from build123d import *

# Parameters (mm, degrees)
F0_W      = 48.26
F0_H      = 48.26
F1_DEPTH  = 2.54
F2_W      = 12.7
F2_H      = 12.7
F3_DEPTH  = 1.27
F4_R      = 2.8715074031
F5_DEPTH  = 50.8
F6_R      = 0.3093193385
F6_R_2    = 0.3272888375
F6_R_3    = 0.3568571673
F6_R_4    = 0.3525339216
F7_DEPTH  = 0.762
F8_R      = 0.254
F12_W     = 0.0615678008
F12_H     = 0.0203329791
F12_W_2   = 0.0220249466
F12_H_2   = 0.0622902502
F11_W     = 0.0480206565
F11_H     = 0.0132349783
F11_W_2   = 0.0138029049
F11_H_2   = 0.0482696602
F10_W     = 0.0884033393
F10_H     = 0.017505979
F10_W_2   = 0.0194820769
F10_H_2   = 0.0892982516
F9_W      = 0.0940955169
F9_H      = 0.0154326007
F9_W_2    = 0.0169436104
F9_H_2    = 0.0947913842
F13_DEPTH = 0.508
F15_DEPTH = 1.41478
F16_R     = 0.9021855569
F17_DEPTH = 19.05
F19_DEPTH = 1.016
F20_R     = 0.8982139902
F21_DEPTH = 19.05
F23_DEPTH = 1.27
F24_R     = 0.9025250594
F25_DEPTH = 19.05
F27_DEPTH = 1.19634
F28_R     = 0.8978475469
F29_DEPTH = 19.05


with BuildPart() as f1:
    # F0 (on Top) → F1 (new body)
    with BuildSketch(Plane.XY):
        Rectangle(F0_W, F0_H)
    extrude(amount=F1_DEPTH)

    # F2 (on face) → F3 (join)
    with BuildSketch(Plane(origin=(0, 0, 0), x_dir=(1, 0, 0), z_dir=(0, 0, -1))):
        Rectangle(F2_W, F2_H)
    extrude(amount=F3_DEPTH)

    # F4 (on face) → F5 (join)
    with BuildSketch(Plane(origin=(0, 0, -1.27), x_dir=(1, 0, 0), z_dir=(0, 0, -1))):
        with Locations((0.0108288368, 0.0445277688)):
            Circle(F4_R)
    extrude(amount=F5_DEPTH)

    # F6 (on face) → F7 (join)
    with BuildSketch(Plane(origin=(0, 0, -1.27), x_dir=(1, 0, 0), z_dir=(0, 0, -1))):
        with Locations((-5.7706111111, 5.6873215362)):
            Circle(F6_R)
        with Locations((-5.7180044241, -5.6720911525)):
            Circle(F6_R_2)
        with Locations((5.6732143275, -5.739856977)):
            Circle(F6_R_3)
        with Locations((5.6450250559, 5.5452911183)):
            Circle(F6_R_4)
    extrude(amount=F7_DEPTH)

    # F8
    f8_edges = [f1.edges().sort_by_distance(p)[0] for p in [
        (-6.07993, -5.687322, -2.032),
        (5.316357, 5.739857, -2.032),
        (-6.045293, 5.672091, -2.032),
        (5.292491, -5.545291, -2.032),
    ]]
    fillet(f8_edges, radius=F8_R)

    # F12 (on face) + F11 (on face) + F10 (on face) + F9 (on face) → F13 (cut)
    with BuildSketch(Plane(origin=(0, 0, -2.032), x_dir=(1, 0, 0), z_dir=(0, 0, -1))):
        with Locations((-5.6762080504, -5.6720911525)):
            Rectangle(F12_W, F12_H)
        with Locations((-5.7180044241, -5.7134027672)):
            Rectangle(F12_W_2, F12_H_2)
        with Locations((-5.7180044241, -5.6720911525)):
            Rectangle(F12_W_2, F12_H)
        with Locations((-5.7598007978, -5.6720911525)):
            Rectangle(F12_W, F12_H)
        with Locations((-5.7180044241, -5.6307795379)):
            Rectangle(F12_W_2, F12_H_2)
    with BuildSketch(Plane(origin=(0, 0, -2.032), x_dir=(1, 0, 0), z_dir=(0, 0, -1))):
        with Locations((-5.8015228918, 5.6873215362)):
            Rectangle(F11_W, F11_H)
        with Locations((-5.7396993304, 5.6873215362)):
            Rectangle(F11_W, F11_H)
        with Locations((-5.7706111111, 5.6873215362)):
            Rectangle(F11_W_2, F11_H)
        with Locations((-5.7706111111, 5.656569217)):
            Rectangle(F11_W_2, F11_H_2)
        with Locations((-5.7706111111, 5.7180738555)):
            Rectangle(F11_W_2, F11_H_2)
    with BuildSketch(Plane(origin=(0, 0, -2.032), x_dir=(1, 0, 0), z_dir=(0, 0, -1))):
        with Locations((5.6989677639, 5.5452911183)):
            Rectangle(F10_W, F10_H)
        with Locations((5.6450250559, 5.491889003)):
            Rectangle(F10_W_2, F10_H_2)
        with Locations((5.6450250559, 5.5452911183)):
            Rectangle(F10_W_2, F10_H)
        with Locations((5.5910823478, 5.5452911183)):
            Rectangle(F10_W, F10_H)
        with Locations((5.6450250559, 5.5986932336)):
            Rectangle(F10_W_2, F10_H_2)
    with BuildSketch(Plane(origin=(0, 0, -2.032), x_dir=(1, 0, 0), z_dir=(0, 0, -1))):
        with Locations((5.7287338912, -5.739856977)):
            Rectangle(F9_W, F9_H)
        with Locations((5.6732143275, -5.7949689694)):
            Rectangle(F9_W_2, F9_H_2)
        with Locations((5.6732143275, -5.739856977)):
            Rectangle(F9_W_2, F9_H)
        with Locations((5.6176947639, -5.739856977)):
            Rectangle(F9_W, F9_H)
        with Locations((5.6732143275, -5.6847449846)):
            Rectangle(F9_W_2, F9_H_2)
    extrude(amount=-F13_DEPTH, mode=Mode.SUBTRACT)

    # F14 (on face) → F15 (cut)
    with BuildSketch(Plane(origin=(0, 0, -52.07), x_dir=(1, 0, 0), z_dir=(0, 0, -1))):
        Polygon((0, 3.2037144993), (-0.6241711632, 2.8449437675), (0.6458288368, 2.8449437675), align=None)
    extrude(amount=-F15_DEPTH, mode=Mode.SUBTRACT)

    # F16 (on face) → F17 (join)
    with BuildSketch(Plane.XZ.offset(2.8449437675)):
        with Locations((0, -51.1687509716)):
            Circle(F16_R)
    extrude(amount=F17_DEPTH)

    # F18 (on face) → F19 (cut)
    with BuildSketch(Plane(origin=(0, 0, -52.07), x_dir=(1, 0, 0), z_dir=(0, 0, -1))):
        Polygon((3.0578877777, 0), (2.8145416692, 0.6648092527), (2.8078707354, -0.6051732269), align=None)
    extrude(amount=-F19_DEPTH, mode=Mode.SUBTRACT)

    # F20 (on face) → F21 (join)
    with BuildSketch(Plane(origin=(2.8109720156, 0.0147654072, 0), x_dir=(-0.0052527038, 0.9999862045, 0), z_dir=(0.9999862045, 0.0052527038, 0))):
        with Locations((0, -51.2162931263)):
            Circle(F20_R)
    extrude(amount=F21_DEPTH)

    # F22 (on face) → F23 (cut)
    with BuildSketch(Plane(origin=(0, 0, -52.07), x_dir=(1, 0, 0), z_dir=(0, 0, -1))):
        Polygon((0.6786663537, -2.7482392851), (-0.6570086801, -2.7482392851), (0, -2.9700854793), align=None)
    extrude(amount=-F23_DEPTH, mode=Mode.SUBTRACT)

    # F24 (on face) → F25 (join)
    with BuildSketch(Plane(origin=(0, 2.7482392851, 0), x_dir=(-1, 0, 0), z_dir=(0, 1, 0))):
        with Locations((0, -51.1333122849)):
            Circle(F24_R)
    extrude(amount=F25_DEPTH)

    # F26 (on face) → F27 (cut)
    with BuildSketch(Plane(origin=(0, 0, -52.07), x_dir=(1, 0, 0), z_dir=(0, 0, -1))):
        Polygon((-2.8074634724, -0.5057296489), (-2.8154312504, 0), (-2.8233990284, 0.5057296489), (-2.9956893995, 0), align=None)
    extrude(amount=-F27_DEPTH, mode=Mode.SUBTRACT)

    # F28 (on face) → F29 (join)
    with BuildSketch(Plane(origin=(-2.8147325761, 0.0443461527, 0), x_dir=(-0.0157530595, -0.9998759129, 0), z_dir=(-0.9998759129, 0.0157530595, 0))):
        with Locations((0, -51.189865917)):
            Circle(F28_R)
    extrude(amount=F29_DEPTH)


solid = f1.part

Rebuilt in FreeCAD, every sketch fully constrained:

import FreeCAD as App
import Part
import Sketcher
Q = App.Units.Quantity


def edges_at(feature, points):
    """Names of the edges that pass closest to the given points."""
    edges = feature.Shape.Edges
    near = lambda p: min(range(len(edges)), key=lambda i: edges[i].distToShape(Part.Vertex(*p))[0])
    return sorted({f"Edge{near(p) + 1}" for p in points})


def add_polygon(sketch, points):
    """Adds a closed chain of lines whose ends are joined by coincident constraints."""
    first, n = sketch.GeometryCount, len(points)
    for a, b in zip(points, points[1:] + points[:1]):
        sketch.addGeometry(Part.LineSegment(App.Vector(*a, 0), App.Vector(*b, 0)), False)
    for i in range(n):
        sketch.addConstraint(Sketcher.Constraint("Coincident", first + i, 2, first + (i + 1) % n, 1))

doc = App.newDocument("Part")
body = doc.addObject("PartDesign::Body", "Body")

# Sketch on XY plane
sketch1 = body.newObject("Sketcher::SketchObject", "Sketch")
sketch1.AttachmentSupport = (doc.getObject("XY_Plane"), [""])
sketch1.MapMode = "FlatFace"
add_polygon(sketch1, [(-24, 24), (-24, -24), (24, -24), (24, 24)])  # lines 0-3
sketch1.addConstraint([
    Sketcher.Constraint("Vertical", 0),
    Sketcher.Constraint("Horizontal", 1),
    Sketcher.Constraint("Vertical", 2),
    Sketcher.Constraint("Horizontal", 3),
    Sketcher.Constraint("Symmetric", 0, 2, 2, 2, -1, 1),
    Sketcher.Constraint("Equal", 3, 0),
    Sketcher.Constraint("DistanceX", 1, 1, 1, 2, Q("1.9 in")),
])
pad1 = body.newObject("PartDesign::Pad", "Pad")
pad1.Profile = sketch1
pad1.Length = Q("0.1 in")

# Sketch on XY plane
sketch2 = body.newObject("Sketcher::SketchObject", "Sketch001")
sketch2.AttachmentSupport = (doc.getObject("XY_Plane"), [""])
sketch2.MapMode = "FlatFace"
add_polygon(sketch2, [(-6, -6), (-6, 6), (6, 6), (6, -6)])  # lines 0-3
sketch2.addConstraint([
    Sketcher.Constraint("Vertical", 0),
    Sketcher.Constraint("Horizontal", 1),
    Sketcher.Constraint("Vertical", 2),
    Sketcher.Constraint("Horizontal", 3),
    Sketcher.Constraint("Symmetric", 0, 2, 2, 2, -1, 1),
    Sketcher.Constraint("Equal", 3, 0),
    Sketcher.Constraint("DistanceX", 1, 1, 1, 2, Q("0.5 in")),
])
pad2 = body.newObject("PartDesign::Pad", "Pad001")
pad2.Profile = sketch2
pad2.Length = Q("0.05 in")
pad2.Reversed = True

# Sketch on XY plane
sketch3 = body.newObject("Sketcher::SketchObject", "Sketch002")
sketch3.AttachmentSupport = (doc.getObject("XY_Plane"), [""])
sketch3.MapMode = "FlatFace"
sketch3.AttachmentOffset = App.Placement(App.Vector(0, 0, -0.05 * 25.4), App.Rotation())
sketch3.addGeometry(Part.Circle(App.Vector(0, 0, 0), App.Vector(0, 0, 1), 2.9), False)
sketch3.addConstraint([
    Sketcher.Constraint("Diameter", 0, Q("5.743015 mm")),
    Sketcher.Constraint("DistanceX", -1, 1, 0, 3, Q("0.010829 mm")),
    Sketcher.Constraint("DistanceY", 0, 3, -1, 1, Q("0.044528 mm")),
])
pad3 = body.newObject("PartDesign::Pad", "Pad002")
pad3.Profile = sketch3
pad3.Length = Q("2 in")
pad3.Reversed = True

# Sketch on XY plane
sketch4 = body.newObject("Sketcher::SketchObject", "Sketch003")
sketch4.AttachmentSupport = (doc.getObject("XY_Plane"), [""])
sketch4.MapMode = "FlatFace"
sketch4.AttachmentOffset = App.Placement(App.Vector(0, 0, -0.05 * 25.4), App.Rotation())
sketch4.addGeometry([
    Part.Circle(App.Vector(-5.77, -5.69, 0), App.Vector(0, 0, 1), 0.31),
    Part.Circle(App.Vector(-5.72, 5.67, 0), App.Vector(0, 0, 1), 0.33),
    Part.Circle(App.Vector(5.67, 5.74, 0), App.Vector(0, 0, 1), 0.36),
    Part.Circle(App.Vector(5.65, -5.55, 0), App.Vector(0, 0, 1), 0.35),
], False)
sketch4.addConstraint([
    Sketcher.Constraint("Diameter", 0, Q("0.618639 mm")),
    Sketcher.Constraint("Diameter", 1, Q("0.654578 mm")),
    Sketcher.Constraint("Diameter", 2, Q("0.713714 mm")),
    Sketcher.Constraint("Diameter", 3, Q("0.705068 mm")),
    Sketcher.Constraint("DistanceX", 0, 3, -1, 1, Q("5.770611 mm")),
    Sketcher.Constraint("DistanceY", 0, 3, -1, 1, Q("5.687322 mm")),
    Sketcher.Constraint("DistanceY", -1, 1, 1, 3, Q("5.672091 mm")),
    Sketcher.Constraint("DistanceY", 3, 3, -1, 1, Q("5.545291 mm")),
    Sketcher.Constraint("DistanceX", 1, 3, 2, 3, Q("11.391219 mm")),
    Sketcher.Constraint("DistanceY", 0, 3, 2, 3, Q("11.427179 mm")),
    Sketcher.Constraint("DistanceX", 3, 3, 2, 3, Q("0.028189 mm")),
    Sketcher.Constraint("DistanceX", 1, 3, -1, 1, Q("5.718004 mm")),
])
pad4 = body.newObject("PartDesign::Pad", "Pad003")
pad4.Profile = sketch4
pad4.Length = Q("0.03 in")
pad4.Reversed = True
doc.recompute()

fillet = body.newObject("PartDesign::Fillet", "Fillet")
fillet.Base = (pad4, edges_at(pad4, [
    (-6.08, -5.687, -2.032),
    (5.316, 5.74, -2.032),
    (-6.045, 5.672, -2.032),
    (5.292, -5.545, -2.032),
]))
fillet.Radius = Q("0.01 in")

# Sketch on XY plane
sketch5 = body.newObject("Sketcher::SketchObject", "Sketch004")
sketch5.AttachmentSupport = (doc.getObject("XY_Plane"), [""])
sketch5.MapMode = "FlatFace"
sketch5.AttachmentOffset = App.Placement(App.Vector(0, 0, -0.08 * 25.4), App.Rotation())
add_polygon(sketch5, [(-5.707, 5.682), (-5.645, 5.682), (-5.645, 5.662), (-5.707, 5.662), (-5.707, 5.6), (-5.729, 5.6), (-5.729, 5.662), (-5.791, 5.662), (-5.791, 5.682), (-5.729, 5.682), (-5.729, 5.745), (-5.707, 5.745)])  # lines 0-11
add_polygon(sketch5, [(-5.826, -5.694), (-5.826, -5.681), (-5.778, -5.681), (-5.778, -5.632), (-5.764, -5.632), (-5.764, -5.681), (-5.716, -5.681), (-5.716, -5.694), (-5.764, -5.694), (-5.764, -5.742), (-5.778, -5.742), (-5.778, -5.694)])  # lines 12-23
add_polygon(sketch5, [(5.655, -5.537), (5.743, -5.537), (5.743, -5.554), (5.655, -5.554), (5.655, -5.643), (5.635, -5.643), (5.635, -5.554), (5.547, -5.554), (5.547, -5.537), (5.635, -5.537), (5.635, -5.447), (5.655, -5.447)])  # lines 24-35
add_polygon(sketch5, [(5.682, 5.748), (5.776, 5.748), (5.776, 5.732), (5.682, 5.732), (5.682, 5.637), (5.665, 5.637), (5.665, 5.732), (5.571, 5.732), (5.571, 5.748), (5.665, 5.748), (5.665, 5.842), (5.682, 5.842)])  # lines 36-47
sketch5.addConstraint([
    Sketcher.Constraint("Horizontal", 0),
    Sketcher.Constraint("Vertical", 1),
    Sketcher.Constraint("Horizontal", 2),
    Sketcher.Constraint("Vertical", 3),
    Sketcher.Constraint("Horizontal", 4),
    Sketcher.Constraint("Vertical", 5),
    Sketcher.Constraint("Horizontal", 6),
    Sketcher.Constraint("Vertical", 7),
    Sketcher.Constraint("Horizontal", 8),
    Sketcher.Constraint("Vertical", 9),
    Sketcher.Constraint("Horizontal", 10),
    Sketcher.Constraint("Vertical", 11),
    Sketcher.Constraint("Vertical", 12),
    Sketcher.Constraint("Horizontal", 13),
    Sketcher.Constraint("Vertical", 14),
    Sketcher.Constraint("Horizontal", 15),
    Sketcher.Constraint("Vertical", 16),
    Sketcher.Constraint("Horizontal", 17),
    Sketcher.Constraint("Vertical", 18),
    Sketcher.Constraint("Horizontal", 19),
    Sketcher.Constraint("Vertical", 20),
    Sketcher.Constraint("Horizontal", 21),
    Sketcher.Constraint("Vertical", 22),
    Sketcher.Constraint("Horizontal", 23),
    Sketcher.Constraint("Horizontal", 24),
    Sketcher.Constraint("Vertical", 25),
    Sketcher.Constraint("Horizontal", 26),
    Sketcher.Constraint("Vertical", 27),
    Sketcher.Constraint("Horizontal", 28),
    Sketcher.Constraint("Vertical", 29),
    Sketcher.Constraint("Horizontal", 30),
    Sketcher.Constraint("Vertical", 31),
    Sketcher.Constraint("Horizontal", 32),
    Sketcher.Constraint("Vertical", 33),
    Sketcher.Constraint("Horizontal", 34),
    Sketcher.Constraint("Vertical", 35),
    Sketcher.Constraint("Horizontal", 36),
    Sketcher.Constraint("Vertical", 37),
    Sketcher.Constraint("Horizontal", 38),
    Sketcher.Constraint("Vertical", 39),
    Sketcher.Constraint("Horizontal", 40),
    Sketcher.Constraint("Vertical", 41),
    Sketcher.Constraint("Horizontal", 42),
    Sketcher.Constraint("Vertical", 43),
    Sketcher.Constraint("Horizontal", 44),
    Sketcher.Constraint("Vertical", 45),
    Sketcher.Constraint("Horizontal", 46),
    Sketcher.Constraint("Vertical", 47),
    Sketcher.Constraint("Horizontal", 2, 2, 5, 2),
    Sketcher.Constraint("Horizontal", 0, 2, 7, 2),
    Sketcher.Constraint("Horizontal", 13, 2, 16, 2),
    Sketcher.Constraint("Horizontal", 19, 2, 22, 2),
    Sketcher.Constraint("Horizontal", 26, 2, 29, 2),
    Sketcher.Constraint("Horizontal", 24, 2, 31, 2),
    Sketcher.Constraint("Horizontal", 38, 2, 41, 2),
    Sketcher.Constraint("Horizontal", 36, 2, 43, 2),
    Sketcher.Constraint("Vertical", 5, 2, 8, 2),
    Sketcher.Constraint("Vertical", 3, 2, 10, 2),
    Sketcher.Constraint("Vertical", 16, 2, 19, 2),
    Sketcher.Constraint("Vertical", 14, 2, 21, 2),
    Sketcher.Constraint("Vertical", 29, 2, 32, 2),
    Sketcher.Constraint("Vertical", 27, 2, 34, 2),
    Sketcher.Constraint("Vertical", 41, 2, 44, 2),
    Sketcher.Constraint("Vertical", 39, 2, 46, 2),
    Sketcher.Constraint("Equal", 2, 6),
    Sketcher.Constraint("Equal", 13, 17),
    Sketcher.Constraint("Equal", 26, 30),
    Sketcher.Constraint("Equal", 38, 42),
    Sketcher.Constraint("Equal", 5, 9),
    Sketcher.Constraint("Equal", 16, 20),
    Sketcher.Constraint("Equal", 29, 33),
    Sketcher.Constraint("Equal", 41, 45),
    Sketcher.Constraint("DistanceY", 27, 2, 27, 1, Q("0.089298 mm")),
    Sketcher.Constraint("DistanceX", 12, 2, 4, 2, Q("0.0037999 in")),
    Sketcher.Constraint("DistanceX", 13, 1, 13, 2, Q("0.048021 mm")),
    Sketcher.Constraint("DistanceY", 3, 2, 3, 1, Q("0.06229 mm")),
    Sketcher.Constraint("DistanceY", 14, 1, 14, 2, Q("0.04827 mm")),
    Sketcher.Constraint("DistanceY", 39, 2, 39, 1, Q("0.094791 mm")),
    Sketcher.Constraint("DistanceY", 18, 2, 24, 2, Q("0.157401 mm")),
    Sketcher.Constraint("DistanceX", 0, 1, 0, 2, Q("0.061568 mm")),
    Sketcher.Constraint("DistanceX", 4, 2, 4, 1, Q("0.022025 mm")),
    Sketcher.Constraint("DistanceX", 15, 1, 15, 2, Q("0.013803 mm")),
    Sketcher.Constraint("DistanceX", 24, 1, 24, 2, Q("0.088403 mm")),
    Sketcher.Constraint("DistanceX", 28, 2, 28, 1, Q("0.019482 mm")),
    Sketcher.Constraint("DistanceX", 36, 1, 36, 2, Q("0.094096 mm")),
    Sketcher.Constraint("DistanceX", 40, 2, 40, 1, Q("0.016944 mm")),
    Sketcher.Constraint("DistanceY", 1, 2, 1, 1, Q("0.020333 mm")),
    Sketcher.Constraint("DistanceY", 12, 1, 12, 2, Q("0.013235 mm")),
    Sketcher.Constraint("DistanceY", 25, 2, 25, 1, Q("0.017506 mm")),
    Sketcher.Constraint("DistanceY", 37, 2, 37, 1, Q("0.015433 mm")),
    Sketcher.Constraint("DistanceX", 2, 2, -1, 1, Q("5.706992 mm")),
    Sketcher.Constraint("DistanceY", 18, 2, -1, 1, Q("5.693939 mm")),
    Sketcher.Constraint("DistanceX", -1, 1, 24, 2, Q("5.743169 mm")),
    Sketcher.Constraint("DistanceX", -1, 1, 36, 2, Q("5.775782 mm")),
    Sketcher.Constraint("DistanceY", -1, 1, 37, 2, Q("5.732141 mm")),
    Sketcher.Constraint("DistanceY", 12, 2, 4, 2, Q("11.280338 mm")),
])
pocket1 = body.newObject("PartDesign::Pocket", "Pocket")
pocket1.Profile = sketch5
pocket1.Length = Q("0.02 in")
pocket1.Reversed = True

# Sketch on XY plane
sketch6 = body.newObject("Sketcher::SketchObject", "Sketch005")
sketch6.AttachmentSupport = (doc.getObject("XY_Plane"), [""])
sketch6.MapMode = "FlatFace"
sketch6.AttachmentOffset = App.Placement(App.Vector(0, 0, -2.05 * 25.4), App.Rotation())
add_polygon(sketch6, [(0, -3.2), (-0.6, -2.8), (0.6, -2.8)])  # lines 0-2
sketch6.addConstraint([
    Sketcher.Constraint("Horizontal", 1),
    Sketcher.Constraint("PointOnObject", 2, 2, -2),
    Sketcher.Constraint("DistanceX", 1, 1, 1, 2, Q("0.05 in")),
    Sketcher.Constraint("Distance", 2, Q("0.73879 mm")),
    Sketcher.Constraint("DistanceX", 0, 2, -1, 1, Q("0.624171 mm")),
    Sketcher.Constraint("DistanceY", 0, 2, -1, 1, Q("2.844944 mm")),
])
pocket2 = body.newObject("PartDesign::Pocket", "Pocket001")
pocket2.Profile = sketch6
pocket2.Length = Q("0.0557 in")
pocket2.Reversed = True

# Sketch on XZ plane
sketch7 = body.newObject("Sketcher::SketchObject", "Sketch006")
sketch7.AttachmentSupport = (doc.getObject("XZ_Plane"), [""])
sketch7.MapMode = "FlatFace"
sketch7.AttachmentOffset = App.Placement(App.Vector(0, 0, 2.844944), App.Rotation())
sketch7.addGeometry(Part.Circle(App.Vector(0, -51.2, 0), App.Vector(0, 0, 1), 0.9), False)
sketch7.addConstraint([
    Sketcher.Constraint("PointOnObject", 0, 3, -2),
    Sketcher.Constraint("Diameter", 0, Q("1.804371 mm")),
    Sketcher.Constraint("DistanceY", 0, 3, -1, 1, Q("51.168751 mm")),
])
pad5 = body.newObject("PartDesign::Pad", "Pad004")
pad5.Profile = sketch7
pad5.Length = Q("0.75 in")

# Sketch on XY plane
sketch8 = body.newObject("Sketcher::SketchObject", "Sketch007")
sketch8.AttachmentSupport = (doc.getObject("XY_Plane"), [""])
sketch8.MapMode = "FlatFace"
sketch8.AttachmentOffset = App.Placement(App.Vector(0, 0, -2.05 * 25.4), App.Rotation())
add_polygon(sketch8, [(3.1, 0), (2.8, -0.7), (2.8, 0.6)])  # lines 0-2
sketch8.addConstraint([
    Sketcher.Constraint("PointOnObject", 2, 2, -1),
    Sketcher.Constraint("Distance", 1, Q("0.05 in")),
    Sketcher.Constraint("DistanceX", -1, 1, 0, 2, Q("2.814542 mm")),
    Sketcher.Constraint("DistanceY", 0, 2, -1, 1, Q("0.664809 mm")),
    Sketcher.Constraint("DistanceX", -1, 1, 1, 2, Q("2.807871 mm")),
    Sketcher.Constraint("Distance", 0, Q("0.707947 mm")),
])
pocket3 = body.newObject("PartDesign::Pocket", "Pocket002")
pocket3.Profile = sketch8
pocket3.Length = Q("0.04 in")
pocket3.Reversed = True

# Sketch on an angled plane
sketch9 = body.newObject("Sketcher::SketchObject", "Sketch008")
sketch9.Placement = App.Placement(App.Vector(2.810972, 0.014765, 0), App.Rotation(App.Vector(-0.005252704, 0.999986204, 0), App.Vector(0, 0, 0.999999999), App.Vector(0.999986204, 0.005252704, 0), "ZXY"))
sketch9.addGeometry(Part.Circle(App.Vector(0, -51.2, 0), App.Vector(0, 0, 1), 0.9), False)
sketch9.addConstraint([
    Sketcher.Constraint("PointOnObject", 0, 3, -2),
    Sketcher.Constraint("Diameter", 0, Q("1.796428 mm")),
    Sketcher.Constraint("DistanceY", 0, 3, -1, 1, Q("51.216293 mm")),
])
pad6 = body.newObject("PartDesign::Pad", "Pad005")
pad6.Profile = sketch9
pad6.Length = Q("0.75 in")

# Sketch on XY plane
sketch10 = body.newObject("Sketcher::SketchObject", "Sketch009")
sketch10.AttachmentSupport = (doc.getObject("XY_Plane"), [""])
sketch10.MapMode = "FlatFace"
sketch10.AttachmentOffset = App.Placement(App.Vector(0, 0, -2.05 * 25.4), App.Rotation())
add_polygon(sketch10, [(0.7, 2.7), (-0.7, 2.7), (0, 3)])  # lines 0-2
sketch10.addConstraint([
    Sketcher.Constraint("Horizontal", 0),
    Sketcher.Constraint("PointOnObject", 1, 2, -2),
    Sketcher.Constraint("DistanceX", 0, 2, 0, 1, Q("1.335675 mm")),
    Sketcher.Constraint("DistanceX", 0, 2, -1, 1, Q("0.657009 mm")),
    Sketcher.Constraint("DistanceY", -1, 1, 0, 2, Q("2.748239 mm")),
    Sketcher.Constraint("Distance", 1, Q("0.693452 mm")),
])
pocket4 = body.newObject("PartDesign::Pocket", "Pocket003")
pocket4.Profile = sketch10
pocket4.Length = Q("0.05 in")
pocket4.Reversed = True

# Sketch on XZ plane
sketch11 = body.newObject("Sketcher::SketchObject", "Sketch010")
sketch11.AttachmentSupport = (doc.getObject("XZ_Plane"), [""])
sketch11.MapMode = "FlatFace"
sketch11.AttachmentOffset = App.Placement(App.Vector(0, 0, -2.748239), App.Rotation())
sketch11.addGeometry(Part.Circle(App.Vector(0, -51.1, 0), App.Vector(0, 0, 1), 0.9), False)
sketch11.addConstraint([
    Sketcher.Constraint("PointOnObject", 0, 3, -2),
    Sketcher.Constraint("Diameter", 0, Q("1.80505 mm")),
    Sketcher.Constraint("DistanceY", 0, 3, -1, 1, Q("51.133312 mm")),
])
pad7 = body.newObject("PartDesign::Pad", "Pad006")
pad7.Profile = sketch11
pad7.Length = Q("0.75 in")
pad7.Reversed = True

# Sketch on XY plane
sketch12 = body.newObject("Sketcher::SketchObject", "Sketch011")
sketch12.AttachmentSupport = (doc.getObject("XY_Plane"), [""])
sketch12.MapMode = "FlatFace"
sketch12.AttachmentOffset = App.Placement(App.Vector(0, 0, -2.05 * 25.4), App.Rotation())
add_polygon(sketch12, [(-2.8, 0.5), (-2.8, -0.5), (-3, 0)])  # lines 0-2
sketch12.addConstraint([
    Sketcher.Constraint("PointOnObject", 1, 2, -1),
    Sketcher.Constraint("DistanceX", 0, 2, -1, 1, Q("2.823399 mm")),
    Sketcher.Constraint("Distance", 1, Q("0.534272 mm")),
    Sketcher.Constraint("Distance", 2, Q("0.539622 mm")),
    Sketcher.Constraint("DistanceY", 0, 2, -1, 1, Q("0.50573 mm")),
    Sketcher.Constraint("DistanceY", -1, 1, 2, 2, Q("0.50573 mm")),
])
pocket5 = body.newObject("PartDesign::Pocket", "Pocket004")
pocket5.Profile = sketch12
pocket5.Length = Q("0.0471 in")
pocket5.Reversed = True

# Sketch on an angled plane
sketch13 = body.newObject("Sketcher::SketchObject", "Sketch012")
sketch13.Placement = App.Placement(App.Vector(-2.814733, 0.044346, 0), App.Rotation(App.Vector(-0.015753059, -0.999875913, 0), App.Vector(0, 0, 1), App.Vector(-0.999875913, 0.015753059, 0), "ZXY"))
sketch13.addGeometry(Part.Circle(App.Vector(0, -51.2, 0), App.Vector(0, 0, 1), 0.9), False)
sketch13.addConstraint([
    Sketcher.Constraint("PointOnObject", 0, 3, -2),
    Sketcher.Constraint("Diameter", 0, Q("1.795695 mm")),
    Sketcher.Constraint("DistanceY", 0, 3, -1, 1, Q("51.189866 mm")),
])
pad8 = body.newObject("PartDesign::Pad", "Pad007")
pad8.Profile = sketch13
pad8.Length = Q("0.75 in")

doc.recompute()
